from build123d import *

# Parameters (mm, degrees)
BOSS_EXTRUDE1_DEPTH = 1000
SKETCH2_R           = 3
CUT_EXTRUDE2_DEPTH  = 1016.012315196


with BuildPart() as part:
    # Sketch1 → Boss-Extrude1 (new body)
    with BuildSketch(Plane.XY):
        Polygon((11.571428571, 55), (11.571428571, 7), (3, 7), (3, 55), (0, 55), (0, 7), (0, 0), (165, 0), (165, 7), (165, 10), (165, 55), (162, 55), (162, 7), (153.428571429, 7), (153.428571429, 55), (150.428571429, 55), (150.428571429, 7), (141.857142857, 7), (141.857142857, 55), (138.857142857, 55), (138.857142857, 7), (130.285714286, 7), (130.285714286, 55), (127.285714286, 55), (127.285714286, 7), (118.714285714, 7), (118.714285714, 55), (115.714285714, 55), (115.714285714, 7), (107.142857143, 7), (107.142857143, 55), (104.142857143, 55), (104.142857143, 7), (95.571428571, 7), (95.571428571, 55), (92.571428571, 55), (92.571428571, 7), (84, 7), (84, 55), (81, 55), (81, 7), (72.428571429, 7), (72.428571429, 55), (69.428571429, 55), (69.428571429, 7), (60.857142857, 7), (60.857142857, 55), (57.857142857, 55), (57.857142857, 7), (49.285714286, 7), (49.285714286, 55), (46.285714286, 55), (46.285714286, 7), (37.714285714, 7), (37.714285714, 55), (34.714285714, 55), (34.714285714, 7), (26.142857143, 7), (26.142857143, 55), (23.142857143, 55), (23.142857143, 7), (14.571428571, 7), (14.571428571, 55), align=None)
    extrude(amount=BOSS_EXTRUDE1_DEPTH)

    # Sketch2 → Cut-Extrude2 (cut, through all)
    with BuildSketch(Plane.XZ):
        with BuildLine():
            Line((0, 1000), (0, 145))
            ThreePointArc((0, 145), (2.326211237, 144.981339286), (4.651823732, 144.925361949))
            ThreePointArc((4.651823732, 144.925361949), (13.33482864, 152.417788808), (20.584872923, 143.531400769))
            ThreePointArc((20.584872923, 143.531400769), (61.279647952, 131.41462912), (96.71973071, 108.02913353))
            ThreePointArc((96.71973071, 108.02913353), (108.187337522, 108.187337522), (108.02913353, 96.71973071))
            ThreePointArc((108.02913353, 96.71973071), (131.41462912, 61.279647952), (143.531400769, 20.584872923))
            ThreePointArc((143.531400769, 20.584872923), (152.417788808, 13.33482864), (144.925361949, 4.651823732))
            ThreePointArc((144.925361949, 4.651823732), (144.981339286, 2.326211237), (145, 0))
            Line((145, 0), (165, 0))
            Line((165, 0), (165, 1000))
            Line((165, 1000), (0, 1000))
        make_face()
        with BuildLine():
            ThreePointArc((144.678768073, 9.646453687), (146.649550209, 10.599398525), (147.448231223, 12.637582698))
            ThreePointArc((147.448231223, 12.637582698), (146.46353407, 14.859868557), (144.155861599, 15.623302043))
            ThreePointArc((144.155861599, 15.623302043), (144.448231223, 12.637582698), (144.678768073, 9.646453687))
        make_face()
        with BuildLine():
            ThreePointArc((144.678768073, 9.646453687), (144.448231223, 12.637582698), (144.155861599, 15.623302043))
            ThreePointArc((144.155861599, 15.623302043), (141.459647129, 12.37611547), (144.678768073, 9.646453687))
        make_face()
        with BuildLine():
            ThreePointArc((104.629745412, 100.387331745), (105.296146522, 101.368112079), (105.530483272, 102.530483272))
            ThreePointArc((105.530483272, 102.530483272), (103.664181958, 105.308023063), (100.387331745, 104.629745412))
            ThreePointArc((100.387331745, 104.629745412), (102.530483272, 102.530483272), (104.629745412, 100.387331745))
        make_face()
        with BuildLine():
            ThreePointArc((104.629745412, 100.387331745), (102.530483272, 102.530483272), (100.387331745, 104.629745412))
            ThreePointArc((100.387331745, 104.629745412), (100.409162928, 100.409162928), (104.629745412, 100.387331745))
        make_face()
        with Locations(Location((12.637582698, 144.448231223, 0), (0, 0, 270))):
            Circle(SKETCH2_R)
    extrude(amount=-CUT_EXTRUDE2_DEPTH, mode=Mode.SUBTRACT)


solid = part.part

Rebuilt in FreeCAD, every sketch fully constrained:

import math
import FreeCAD as App
import Part
import Sketcher
from FreeCAD import Vector
Q = App.Units.Quantity


def add_polygon(sketch, points):
    """Adds a closed chain of lines whose ends are joined by coincident constraints."""
    first, n = sketch.GeometryCount, len(points)
    for a, b in zip(points, points[1:] + points[:1]):
        sketch.addGeometry(Part.LineSegment(App.Vector(*a, 0), App.Vector(*b, 0)), False)
    for i in range(n):
        sketch.addConstraint(Sketcher.Constraint("Coincident", first + i, 2, first + (i + 1) % n, 1))

doc = App.newDocument("Part")
body = doc.addObject("PartDesign::Body", "Body")

# Sketch on XY plane
sketch1 = body.newObject("Sketcher::SketchObject", "Sketch")
sketch1.AttachmentSupport = (doc.getObject("XY_Plane"), [""])
sketch1.MapMode = "FlatFace"
add_polygon(sketch1, [(11.6, 55), (11.6, 7), (3, 7), (3, 55), (0, 55), (0, 0), (165, 0), (165, 55), (162, 55), (162, 7), (153.4, 7), (153.4, 55), (150.4, 55), (150.4, 7), (141.9, 7), (141.9, 55), (138.9, 55), (138.9, 7), (130.3, 7), (130.3, 55), (127.3, 55), (127.3, 7), (118.7, 7), (118.7, 55), (115.7, 55), (115.7, 7), (107.1, 7), (107.1, 55), (104.1, 55), (104.1, 7), (95.6, 7), (95.6, 55), (92.6, 55), (92.6, 7), (84, 7), (84, 55), (81, 55), (81, 7), (72.4, 7), (72.4, 55), (69.4, 55), (69.4, 7), (60.9, 7), (60.9, 55), (57.9, 55), (57.9, 7), (49.3, 7), (49.3, 55), (46.3, 55), (46.3, 7), (37.7, 7), (37.7, 55), (34.7, 55), (34.7, 7), (26.1, 7), (26.1, 55), (23.1, 55), (23.1, 7), (14.6, 7), (14.6, 55)])  # lines 0-59
sketch1.addConstraint(Sketcher.Constraint("Vertical", 0))
sketch1.addConstraint(Sketcher.Constraint("Horizontal", 1))
sketch1.addConstraint(Sketcher.Constraint("Vertical", 2))
sketch1.addConstraint(Sketcher.Constraint("Horizontal", 3))
sketch1.addConstraint(Sketcher.Constraint("Vertical", 4))
sketch1.addConstraint(Sketcher.Constraint("Horizontal", 5))
sketch1.addConstraint(Sketcher.Constraint("Vertical", 6))
sketch1.addConstraint(Sketcher.Constraint("Horizontal", 7))
sketch1.addConstraint(Sketcher.Constraint("Vertical", 8))
sketch1.addConstraint(Sketcher.Constraint("Horizontal", 9))
sketch1.addConstraint(Sketcher.Constraint("Vertical", 10))
sketch1.addConstraint(Sketcher.Constraint("Horizontal", 11))
sketch1.addConstraint(Sketcher.Constraint("Vertical", 12))
sketch1.addConstraint(Sketcher.Constraint("Horizontal", 13))
sketch1.addConstraint(Sketcher.Constraint("Vertical", 14))
sketch1.addConstraint(Sketcher.Constraint("Horizontal", 15))
sketch1.addConstraint(Sketcher.Constraint("Vertical", 16))
sketch1.addConstraint(Sketcher.Constraint("Horizontal", 17))
sketch1.addConstraint(Sketcher.Constraint("Vertical", 18))
sketch1.addConstraint(Sketcher.Constraint("Horizontal", 19))
sketch1.addConstraint(Sketcher.Constraint("Vertical", 20))
sketch1.addConstraint(Sketcher.Constraint("Horizontal", 21))
sketch1.addConstraint(Sketcher.Constraint("Vertical", 22))
sketch1.addConstraint(Sketcher.Constraint("Horizontal", 23))
sketch1.addConstraint(Sketcher.Constraint("Vertical", 24))
sketch1.addConstraint(Sketcher.Constraint("Horizontal", 25))
sketch1.addConstraint(Sketcher.Constraint("Vertical", 26))
sketch1.addConstraint(Sketcher.Constraint("Horizontal", 27))
sketch1.addConstraint(Sketcher.Constraint("Vertical", 28))
sketch1.addConstraint(Sketcher.Constraint("Horizontal", 29))
sketch1.addConstraint(Sketcher.Constraint("Vertical", 30))
sketch1.addConstraint(Sketcher.Constraint("Horizontal", 31))
sketch1.addConstraint(Sketcher.Constraint("Vertical", 32))
sketch1.addConstraint(Sketcher.Constraint("Horizontal", 33))
sketch1.addConstraint(Sketcher.Constraint("Vertical", 34))
sketch1.addConstraint(Sketcher.Constraint("Horizontal", 35))
sketch1.addConstraint(Sketcher.Constraint("Vertical", 36))
sketch1.addConstraint(Sketcher.Constraint("Horizontal", 37))
sketch1.addConstraint(Sketcher.Constraint("Vertical", 38))
sketch1.addConstraint(Sketcher.Constraint("Horizontal", 39))
sketch1.addConstraint(Sketcher.Constraint("Vertical", 40))
sketch1.addConstraint(Sketcher.Constraint("Horizontal", 41))
sketch1.addConstraint(Sketcher.Constraint("Vertical", 42))
sketch1.addConstraint(Sketcher.Constraint("Horizontal", 43))
sketch1.addConstraint(Sketcher.Constraint("Vertical", 44))
sketch1.addConstraint(Sketcher.Constraint("Horizontal", 45))
sketch1.addConstraint(Sketcher.Constraint("Vertical", 46))
sketch1.addConstraint(Sketcher.Constraint("Horizontal", 47))
sketch1.addConstraint(Sketcher.Constraint("Vertical", 48))
sketch1.addConstraint(Sketcher.Constraint("Horizontal", 49))
sketch1.addConstraint(Sketcher.Constraint("Vertical", 50))
sketch1.addConstraint(Sketcher.Constraint("Horizontal", 51))
sketch1.addConstraint(Sketcher.Constraint("Vertical", 52))
sketch1.addConstraint(Sketcher.Constraint("Horizontal", 53))
sketch1.addConstraint(Sketcher.Constraint("Vertical", 54))
sketch1.addConstraint(Sketcher.Constraint("Horizontal", 55))
sketch1.addConstraint(Sketcher.Constraint("Vertical", 56))
sketch1.addConstraint(Sketcher.Constraint("Horizontal", 57))
sketch1.addConstraint(Sketcher.Constraint("Vertical", 58))
sketch1.addConstraint(Sketcher.Constraint("Horizontal", 59))
sketch1.addConstraint(Sketcher.Constraint("Coincident", 4, 2, -1, 1))
sketch1.addConstraint(Sketcher.Constraint("Horizontal", 3, 2, 6, 2))
sketch1.addConstraint(Sketcher.Constraint("Horizontal", 1, 2, 8, 2))
sketch1.addConstraint(Sketcher.Constraint("Horizontal", 7, 2, 10, 2))
sketch1.addConstraint(Sketcher.Constraint("Horizontal", 9, 2, 12, 2))
sketch1.addConstraint(Sketcher.Constraint("Horizontal", 11, 2, 14, 2))
sketch1.addConstraint(Sketcher.Constraint("Horizontal", 13, 2, 16, 2))
sketch1.addConstraint(Sketcher.Constraint("Horizontal", 15, 2, 18, 2))
sketch1.addConstraint(Sketcher.Constraint("Horizontal", 17, 2, 20, 2))
sketch1.addConstraint(Sketcher.Constraint("Horizontal", 19, 2, 22, 2))
sketch1.addConstraint(Sketcher.Constraint("Horizontal", 21, 2, 24, 2))
sketch1.addConstraint(Sketcher.Constraint("Horizontal", 23, 2, 26, 2))
sketch1.addConstraint(Sketcher.Constraint("Horizontal", 25, 2, 28, 2))
sketch1.addConstraint(Sketcher.Constraint("Horizontal", 27, 2, 30, 2))
sketch1.addConstraint(Sketcher.Constraint("Horizontal", 29, 2, 32, 2))
sketch1.addConstraint(Sketcher.Constraint("Horizontal", 31, 2, 34, 2))
sketch1.addConstraint(Sketcher.Constraint("Horizontal", 33, 2, 36, 2))
sketch1.addConstraint(Sketcher.Constraint("Horizontal", 35, 2, 38, 2))
sketch1.addConstraint(Sketcher.Constraint("Horizontal", 37, 2, 40, 2))
sketch1.addConstraint(Sketcher.Constraint("Horizontal", 39, 2, 42, 2))
sketch1.addConstraint(Sketcher.Constraint("Horizontal", 41, 2, 44, 2))
sketch1.addConstraint(Sketcher.Constraint("Horizontal", 43, 2, 46, 2))
sketch1.addConstraint(Sketcher.Constraint("Horizontal", 45, 2, 48, 2))
sketch1.addConstraint(Sketcher.Constraint("Horizontal", 47, 2, 50, 2))
sketch1.addConstraint(Sketcher.Constraint("Horizontal", 49, 2, 52, 2))
sketch1.addConstraint(Sketcher.Constraint("Horizontal", 51, 2, 54, 2))
sketch1.addConstraint(Sketcher.Constraint("Horizontal", 53, 2, 56, 2))
sketch1.addConstraint(Sketcher.Constraint("Horizontal", 55, 2, 58, 2))
sketch1.addConstraint(Sketcher.Constraint("Equal", 3, 7))
sketch1.addConstraint(Sketcher.Constraint("Equal", 1, 9))
sketch1.addConstraint(Sketcher.Constraint("Equal", 7, 11))
sketch1.addConstraint(Sketcher.Constraint("Equal", 9, 13))
sketch1.addConstraint(Sketcher.Constraint("Equal", 11, 15))
sketch1.addConstraint(Sketcher.Constraint("Equal", 13, 17))
sketch1.addConstraint(Sketcher.Constraint("Equal", 15, 19))
sketch1.addConstraint(Sketcher.Constraint("Equal", 17, 21))
sketch1.addConstraint(Sketcher.Constraint("Equal", 19, 23))
sketch1.addConstraint(Sketcher.Constraint("Equal", 21, 25))
sketch1.addConstraint(Sketcher.Constraint("Equal", 23, 27))
sketch1.addConstraint(Sketcher.Constraint("Equal", 25, 29))
sketch1.addConstraint(Sketcher.Constraint("Equal", 27, 31))
sketch1.addConstraint(Sketcher.Constraint("Equal", 29, 33))
sketch1.addConstraint(Sketcher.Constraint("Equal", 31, 35))
sketch1.addConstraint(Sketcher.Constraint("Equal", 33, 37))
sketch1.addConstraint(Sketcher.Constraint("Equal", 35, 39))
sketch1.addConstraint(Sketcher.Constraint("Equal", 37, 41))
sketch1.addConstraint(Sketcher.Constraint("Equal", 39, 43))
sketch1.addConstraint(Sketcher.Constraint("Equal", 41, 45))
sketch1.addConstraint(Sketcher.Constraint("Equal", 43, 47))
sketch1.addConstraint(Sketcher.Constraint("Equal", 45, 49))
sketch1.addConstraint(Sketcher.Constraint("Equal", 47, 51))
sketch1.addConstraint(Sketcher.Constraint("Equal", 49, 53))
sketch1.addConstraint(Sketcher.Constraint("Equal", 51, 55))
sketch1.addConstraint(Sketcher.Constraint("Equal", 53, 57))
sketch1.addConstraint(Sketcher.Constraint("Equal", 55, 59))
sketch1.addConstraint(Sketcher.Constraint("DistanceX", 3, 2, 3, 1, Q("3 mm")))
sketch1.addConstraint(Sketcher.Constraint("DistanceX", 5, 1, 5, 2, Q("165 mm")))
sketch1.addConstraint(Sketcher.Constraint("DistanceY", 0, 2, 0, 1, Q("48 mm")))
sketch1.addConstraint(Sketcher.Constraint("DistanceY", 4, 2, 4, 1, Q("55 mm")))
pad1 = body.newObject("PartDesign::Pad", "Pad")
pad1.Profile = sketch1
pad1.Length = 1000

# Sketch on XZ plane
sketch2 = body.newObject("Sketcher::SketchObject", "Sketch001")
sketch2.AttachmentSupport = (doc.getObject("XZ_Plane"), [""])
sketch2.MapMode = "FlatFace"
sketch2.addGeometry(Part.LineSegment(Vector(0, 1000, 0), Vector(0, 145, 0)), False)
sketch2.addGeometry(Part.ArcOfCircle(Part.Circle(Vector(0, 0, 0), Vector(0, 0, 1), 145), math.radians(88.16), math.radians(90)), False)
sketch2.addGeometry(Part.ArcOfCircle(Part.Circle(Vector(12.6, 144.4, 0), Vector(0, 0, 1), 8), math.radians(-7), math.radians(177)), False)
sketch2.addGeometry(Part.ArcOfCircle(Part.Circle(Vector(0, 0, 0), Vector(0, 0, 1), 145), math.radians(48), math.radians(82)), False)
sketch2.addGeometry(Part.ArcOfCircle(Part.Circle(Vector(102.5, 102.5, 0), Vector(0, 0, 1), 8), math.radians(-47), math.radians(137)), False)
sketch2.addGeometry(Part.ArcOfCircle(Part.Circle(Vector(0, 0, 0), Vector(0, 0, 1), 145), math.radians(8), math.radians(42)), False)
sketch2.addGeometry(Part.ArcOfCircle(Part.Circle(Vector(144.4, 12.6, 0), Vector(0, 0, 1), 8), math.radians(-87), math.radians(97)), False)
sketch2.addGeometry(Part.ArcOfCircle(Part.Circle(Vector(0, 0, 0), Vector(0, 0, 1), 145), math.radians(0), math.radians(1.84)), False)
sketch2.addGeometry(Part.LineSegment(Vector(145, 0, 0), Vector(165, 0, 0)), False)
sketch2.addGeometry(Part.LineSegment(Vector(165, 0, 0), Vector(165, 1000, 0)), False)
sketch2.addGeometry(Part.LineSegment(Vector(165, 1000, 0), Vector(0, 1000, 0)), False)
sketch2.addGeometry(Part.ArcOfCircle(Part.Circle(Vector(144.4, 12.6, 0), Vector(0, 0, 1), 3), math.radians(0), math.radians(96)), False)
sketch2.addGeometry(Part.ArcOfCircle(Part.Circle(Vector(144.4, 12.6, 0), Vector(0, 0, 1), 3), math.radians(96), math.radians(360)), False)
sketch2.addGeometry(Part.ArcOfCircle(Part.Circle(Vector(102.5, 102.5, 0), Vector(0, 0, 1), 3), math.radians(-46), math.radians(0)), False)
sketch2.addGeometry(Part.ArcOfCircle(Part.Circle(Vector(102.5, 102.5, 0), Vector(0, 0, 1), 3), math.radians(0), math.radians(136)), False)
sketch2.addGeometry(Part.ArcOfCircle(Part.Circle(Vector(102.5, 102.5, 0), Vector(0, 0, 1), 3), math.radians(136), math.radians(314)), False)
sketch2.addGeometry(Part.Circle(Vector(12.6, 144.4, 0), Vector(0, 0, 1), 3), False)
sketch2.addConstraint(Sketcher.Constraint("Coincident", 0, 2, 1, 2))
sketch2.addConstraint(Sketcher.Constraint("Coincident", 1, 1, 2, 2))
sketch2.addConstraint(Sketcher.Constraint("Coincident", 2, 1, 3, 2))
sketch2.addConstraint(Sketcher.Constraint("Coincident", 3, 1, 4, 2))
sketch2.addConstraint(Sketcher.Constraint("Coincident", 4, 1, 5, 2))
sketch2.addConstraint(Sketcher.Constraint("Coincident", 5, 1, 6, 2))
sketch2.addConstraint(Sketcher.Constraint("Coincident", 6, 1, 7, 2))
sketch2.addConstraint(Sketcher.Constraint("Coincident", 7, 1, 8, 1))
sketch2.addConstraint(Sketcher.Constraint("Coincident", 8, 2, 9, 1))
sketch2.addConstraint(Sketcher.Constraint("Coincident", 9, 2, 10, 1))
sketch2.addConstraint(Sketcher.Constraint("Coincident", 10, 2, 0, 1))
sketch2.addConstraint(Sketcher.Constraint("Tangent", 11, 1, 12, 2))
sketch2.addConstraint(Sketcher.Constraint("Coincident", 12, 1, 11, 2))
sketch2.addConstraint(Sketcher.Constraint("Tangent", 13, 2, 14, 1))
sketch2.addConstraint(Sketcher.Constraint("Tangent", 14, 2, 15, 1))
sketch2.addConstraint(Sketcher.Constraint("Tangent", 15, 2, 13, 1))
sketch2.addConstraint(Sketcher.Constraint("Vertical", 0))
sketch2.addConstraint(Sketcher.Constraint("Horizontal", 8))
sketch2.addConstraint(Sketcher.Constraint("Vertical", 9))
sketch2.addConstraint(Sketcher.Constraint("Horizontal", 10))
sketch2.addConstraint(Sketcher.Constraint("Coincident", 1, 3, -1, 1))
sketch2.addConstraint(Sketcher.Constraint("Coincident", 3, 3, -1, 1))
sketch2.addConstraint(Sketcher.Constraint("Coincident", 5, 3, -1, 1))
sketch2.addConstraint(Sketcher.Constraint("Coincident", 7, 3, -1, 1))
sketch2.addConstraint(Sketcher.Constraint("Coincident", 11, 3, 6, 3))
sketch2.addConstraint(Sketcher.Constraint("Coincident", 13, 3, 4, 3))
sketch2.addConstraint(Sketcher.Constraint("Coincident", 16, 3, 2, 3))
sketch2.addConstraint(Sketcher.Constraint("Equal", 2, 4))
sketch2.addConstraint(Sketcher.Constraint("Equal", 3, 5))
sketch2.addConstraint(Sketcher.Constraint("Equal", 4, 6))
sketch2.addConstraint(Sketcher.Constraint("Equal", 1, 7))
sketch2.addConstraint(Sketcher.Constraint("Equal", 12, 13))
sketch2.addConstraint(Sketcher.Constraint("Equal", 15, 16))
sketch2.addConstraint(Sketcher.Constraint("PointOnObject", 0, 2, -2))
sketch2.addConstraint(Sketcher.Constraint("PointOnObject", 7, 1, -1))
sketch2.addConstraint(Sketcher.Constraint("Horizontal", 12, 3, 11, 1))
sketch2.addConstraint(Sketcher.Constraint("Horizontal", 15, 3, 13, 2))
sketch2.addConstraint(Sketcher.Constraint("Diameter", 16, Q("6 mm")))
sketch2.addConstraint(Sketcher.Constraint("Radius", 2, Q("8 mm")))
sketch2.addConstraint(Sketcher.Constraint("Radius", 3, Q("145 mm")))
sketch2.addConstraint(Sketcher.Constraint("DistanceX", 8, 1, 8, 2, Q("20 mm")))
sketch2.addConstraint(Sketcher.Constraint("DistanceX", 10, 2, 10, 1, Q("165 mm")))
sketch2.addConstraint(Sketcher.Constraint("DistanceY", 0, 2, 0, 1, Q("855 mm")))
sketch2.addConstraint(Sketcher.Constraint("DistanceY", -1, 1, 2, 1, Q("143.531401 mm")))
sketch2.addConstraint(Sketcher.Constraint("DistanceX", -1, 1, 5, 1, Q("143.531401 mm")))
sketch2.addConstraint(Sketcher.Constraint("DistanceX", 2, 3, 4, 3, Q("89.892901 mm")))
sketch2.addConstraint(Sketcher.Constraint("DistanceY", 6, 3, 4, 3, Q("89.892901 mm")))
sketch2.addConstraint(Sketcher.Constraint("DistanceX", 3, 1, 14, 2, Q("3.667601 mm")))
sketch2.addConstraint(Sketcher.Constraint("DistanceY", -1, 1, 2, 3, Q("144.448231 mm")))
sketch2.addConstraint(Sketcher.Constraint("DistanceX", -1, 1, 6, 3, Q("144.448231 mm")))
sketch2.addConstraint(Sketcher.Constraint("DistanceX", -1, 1, 12, 1, Q("144.155862 mm")))
sketch2.addConstraint(Sketcher.Constraint("DistanceY", -1, 1, 15, 2, Q("100.387332 mm")))
pocket1 = body.newObject("PartDesign::Pocket", "Pocket")
pocket1.Profile = sketch2
pocket1.Type = "ThroughAll"

doc.recompute()
